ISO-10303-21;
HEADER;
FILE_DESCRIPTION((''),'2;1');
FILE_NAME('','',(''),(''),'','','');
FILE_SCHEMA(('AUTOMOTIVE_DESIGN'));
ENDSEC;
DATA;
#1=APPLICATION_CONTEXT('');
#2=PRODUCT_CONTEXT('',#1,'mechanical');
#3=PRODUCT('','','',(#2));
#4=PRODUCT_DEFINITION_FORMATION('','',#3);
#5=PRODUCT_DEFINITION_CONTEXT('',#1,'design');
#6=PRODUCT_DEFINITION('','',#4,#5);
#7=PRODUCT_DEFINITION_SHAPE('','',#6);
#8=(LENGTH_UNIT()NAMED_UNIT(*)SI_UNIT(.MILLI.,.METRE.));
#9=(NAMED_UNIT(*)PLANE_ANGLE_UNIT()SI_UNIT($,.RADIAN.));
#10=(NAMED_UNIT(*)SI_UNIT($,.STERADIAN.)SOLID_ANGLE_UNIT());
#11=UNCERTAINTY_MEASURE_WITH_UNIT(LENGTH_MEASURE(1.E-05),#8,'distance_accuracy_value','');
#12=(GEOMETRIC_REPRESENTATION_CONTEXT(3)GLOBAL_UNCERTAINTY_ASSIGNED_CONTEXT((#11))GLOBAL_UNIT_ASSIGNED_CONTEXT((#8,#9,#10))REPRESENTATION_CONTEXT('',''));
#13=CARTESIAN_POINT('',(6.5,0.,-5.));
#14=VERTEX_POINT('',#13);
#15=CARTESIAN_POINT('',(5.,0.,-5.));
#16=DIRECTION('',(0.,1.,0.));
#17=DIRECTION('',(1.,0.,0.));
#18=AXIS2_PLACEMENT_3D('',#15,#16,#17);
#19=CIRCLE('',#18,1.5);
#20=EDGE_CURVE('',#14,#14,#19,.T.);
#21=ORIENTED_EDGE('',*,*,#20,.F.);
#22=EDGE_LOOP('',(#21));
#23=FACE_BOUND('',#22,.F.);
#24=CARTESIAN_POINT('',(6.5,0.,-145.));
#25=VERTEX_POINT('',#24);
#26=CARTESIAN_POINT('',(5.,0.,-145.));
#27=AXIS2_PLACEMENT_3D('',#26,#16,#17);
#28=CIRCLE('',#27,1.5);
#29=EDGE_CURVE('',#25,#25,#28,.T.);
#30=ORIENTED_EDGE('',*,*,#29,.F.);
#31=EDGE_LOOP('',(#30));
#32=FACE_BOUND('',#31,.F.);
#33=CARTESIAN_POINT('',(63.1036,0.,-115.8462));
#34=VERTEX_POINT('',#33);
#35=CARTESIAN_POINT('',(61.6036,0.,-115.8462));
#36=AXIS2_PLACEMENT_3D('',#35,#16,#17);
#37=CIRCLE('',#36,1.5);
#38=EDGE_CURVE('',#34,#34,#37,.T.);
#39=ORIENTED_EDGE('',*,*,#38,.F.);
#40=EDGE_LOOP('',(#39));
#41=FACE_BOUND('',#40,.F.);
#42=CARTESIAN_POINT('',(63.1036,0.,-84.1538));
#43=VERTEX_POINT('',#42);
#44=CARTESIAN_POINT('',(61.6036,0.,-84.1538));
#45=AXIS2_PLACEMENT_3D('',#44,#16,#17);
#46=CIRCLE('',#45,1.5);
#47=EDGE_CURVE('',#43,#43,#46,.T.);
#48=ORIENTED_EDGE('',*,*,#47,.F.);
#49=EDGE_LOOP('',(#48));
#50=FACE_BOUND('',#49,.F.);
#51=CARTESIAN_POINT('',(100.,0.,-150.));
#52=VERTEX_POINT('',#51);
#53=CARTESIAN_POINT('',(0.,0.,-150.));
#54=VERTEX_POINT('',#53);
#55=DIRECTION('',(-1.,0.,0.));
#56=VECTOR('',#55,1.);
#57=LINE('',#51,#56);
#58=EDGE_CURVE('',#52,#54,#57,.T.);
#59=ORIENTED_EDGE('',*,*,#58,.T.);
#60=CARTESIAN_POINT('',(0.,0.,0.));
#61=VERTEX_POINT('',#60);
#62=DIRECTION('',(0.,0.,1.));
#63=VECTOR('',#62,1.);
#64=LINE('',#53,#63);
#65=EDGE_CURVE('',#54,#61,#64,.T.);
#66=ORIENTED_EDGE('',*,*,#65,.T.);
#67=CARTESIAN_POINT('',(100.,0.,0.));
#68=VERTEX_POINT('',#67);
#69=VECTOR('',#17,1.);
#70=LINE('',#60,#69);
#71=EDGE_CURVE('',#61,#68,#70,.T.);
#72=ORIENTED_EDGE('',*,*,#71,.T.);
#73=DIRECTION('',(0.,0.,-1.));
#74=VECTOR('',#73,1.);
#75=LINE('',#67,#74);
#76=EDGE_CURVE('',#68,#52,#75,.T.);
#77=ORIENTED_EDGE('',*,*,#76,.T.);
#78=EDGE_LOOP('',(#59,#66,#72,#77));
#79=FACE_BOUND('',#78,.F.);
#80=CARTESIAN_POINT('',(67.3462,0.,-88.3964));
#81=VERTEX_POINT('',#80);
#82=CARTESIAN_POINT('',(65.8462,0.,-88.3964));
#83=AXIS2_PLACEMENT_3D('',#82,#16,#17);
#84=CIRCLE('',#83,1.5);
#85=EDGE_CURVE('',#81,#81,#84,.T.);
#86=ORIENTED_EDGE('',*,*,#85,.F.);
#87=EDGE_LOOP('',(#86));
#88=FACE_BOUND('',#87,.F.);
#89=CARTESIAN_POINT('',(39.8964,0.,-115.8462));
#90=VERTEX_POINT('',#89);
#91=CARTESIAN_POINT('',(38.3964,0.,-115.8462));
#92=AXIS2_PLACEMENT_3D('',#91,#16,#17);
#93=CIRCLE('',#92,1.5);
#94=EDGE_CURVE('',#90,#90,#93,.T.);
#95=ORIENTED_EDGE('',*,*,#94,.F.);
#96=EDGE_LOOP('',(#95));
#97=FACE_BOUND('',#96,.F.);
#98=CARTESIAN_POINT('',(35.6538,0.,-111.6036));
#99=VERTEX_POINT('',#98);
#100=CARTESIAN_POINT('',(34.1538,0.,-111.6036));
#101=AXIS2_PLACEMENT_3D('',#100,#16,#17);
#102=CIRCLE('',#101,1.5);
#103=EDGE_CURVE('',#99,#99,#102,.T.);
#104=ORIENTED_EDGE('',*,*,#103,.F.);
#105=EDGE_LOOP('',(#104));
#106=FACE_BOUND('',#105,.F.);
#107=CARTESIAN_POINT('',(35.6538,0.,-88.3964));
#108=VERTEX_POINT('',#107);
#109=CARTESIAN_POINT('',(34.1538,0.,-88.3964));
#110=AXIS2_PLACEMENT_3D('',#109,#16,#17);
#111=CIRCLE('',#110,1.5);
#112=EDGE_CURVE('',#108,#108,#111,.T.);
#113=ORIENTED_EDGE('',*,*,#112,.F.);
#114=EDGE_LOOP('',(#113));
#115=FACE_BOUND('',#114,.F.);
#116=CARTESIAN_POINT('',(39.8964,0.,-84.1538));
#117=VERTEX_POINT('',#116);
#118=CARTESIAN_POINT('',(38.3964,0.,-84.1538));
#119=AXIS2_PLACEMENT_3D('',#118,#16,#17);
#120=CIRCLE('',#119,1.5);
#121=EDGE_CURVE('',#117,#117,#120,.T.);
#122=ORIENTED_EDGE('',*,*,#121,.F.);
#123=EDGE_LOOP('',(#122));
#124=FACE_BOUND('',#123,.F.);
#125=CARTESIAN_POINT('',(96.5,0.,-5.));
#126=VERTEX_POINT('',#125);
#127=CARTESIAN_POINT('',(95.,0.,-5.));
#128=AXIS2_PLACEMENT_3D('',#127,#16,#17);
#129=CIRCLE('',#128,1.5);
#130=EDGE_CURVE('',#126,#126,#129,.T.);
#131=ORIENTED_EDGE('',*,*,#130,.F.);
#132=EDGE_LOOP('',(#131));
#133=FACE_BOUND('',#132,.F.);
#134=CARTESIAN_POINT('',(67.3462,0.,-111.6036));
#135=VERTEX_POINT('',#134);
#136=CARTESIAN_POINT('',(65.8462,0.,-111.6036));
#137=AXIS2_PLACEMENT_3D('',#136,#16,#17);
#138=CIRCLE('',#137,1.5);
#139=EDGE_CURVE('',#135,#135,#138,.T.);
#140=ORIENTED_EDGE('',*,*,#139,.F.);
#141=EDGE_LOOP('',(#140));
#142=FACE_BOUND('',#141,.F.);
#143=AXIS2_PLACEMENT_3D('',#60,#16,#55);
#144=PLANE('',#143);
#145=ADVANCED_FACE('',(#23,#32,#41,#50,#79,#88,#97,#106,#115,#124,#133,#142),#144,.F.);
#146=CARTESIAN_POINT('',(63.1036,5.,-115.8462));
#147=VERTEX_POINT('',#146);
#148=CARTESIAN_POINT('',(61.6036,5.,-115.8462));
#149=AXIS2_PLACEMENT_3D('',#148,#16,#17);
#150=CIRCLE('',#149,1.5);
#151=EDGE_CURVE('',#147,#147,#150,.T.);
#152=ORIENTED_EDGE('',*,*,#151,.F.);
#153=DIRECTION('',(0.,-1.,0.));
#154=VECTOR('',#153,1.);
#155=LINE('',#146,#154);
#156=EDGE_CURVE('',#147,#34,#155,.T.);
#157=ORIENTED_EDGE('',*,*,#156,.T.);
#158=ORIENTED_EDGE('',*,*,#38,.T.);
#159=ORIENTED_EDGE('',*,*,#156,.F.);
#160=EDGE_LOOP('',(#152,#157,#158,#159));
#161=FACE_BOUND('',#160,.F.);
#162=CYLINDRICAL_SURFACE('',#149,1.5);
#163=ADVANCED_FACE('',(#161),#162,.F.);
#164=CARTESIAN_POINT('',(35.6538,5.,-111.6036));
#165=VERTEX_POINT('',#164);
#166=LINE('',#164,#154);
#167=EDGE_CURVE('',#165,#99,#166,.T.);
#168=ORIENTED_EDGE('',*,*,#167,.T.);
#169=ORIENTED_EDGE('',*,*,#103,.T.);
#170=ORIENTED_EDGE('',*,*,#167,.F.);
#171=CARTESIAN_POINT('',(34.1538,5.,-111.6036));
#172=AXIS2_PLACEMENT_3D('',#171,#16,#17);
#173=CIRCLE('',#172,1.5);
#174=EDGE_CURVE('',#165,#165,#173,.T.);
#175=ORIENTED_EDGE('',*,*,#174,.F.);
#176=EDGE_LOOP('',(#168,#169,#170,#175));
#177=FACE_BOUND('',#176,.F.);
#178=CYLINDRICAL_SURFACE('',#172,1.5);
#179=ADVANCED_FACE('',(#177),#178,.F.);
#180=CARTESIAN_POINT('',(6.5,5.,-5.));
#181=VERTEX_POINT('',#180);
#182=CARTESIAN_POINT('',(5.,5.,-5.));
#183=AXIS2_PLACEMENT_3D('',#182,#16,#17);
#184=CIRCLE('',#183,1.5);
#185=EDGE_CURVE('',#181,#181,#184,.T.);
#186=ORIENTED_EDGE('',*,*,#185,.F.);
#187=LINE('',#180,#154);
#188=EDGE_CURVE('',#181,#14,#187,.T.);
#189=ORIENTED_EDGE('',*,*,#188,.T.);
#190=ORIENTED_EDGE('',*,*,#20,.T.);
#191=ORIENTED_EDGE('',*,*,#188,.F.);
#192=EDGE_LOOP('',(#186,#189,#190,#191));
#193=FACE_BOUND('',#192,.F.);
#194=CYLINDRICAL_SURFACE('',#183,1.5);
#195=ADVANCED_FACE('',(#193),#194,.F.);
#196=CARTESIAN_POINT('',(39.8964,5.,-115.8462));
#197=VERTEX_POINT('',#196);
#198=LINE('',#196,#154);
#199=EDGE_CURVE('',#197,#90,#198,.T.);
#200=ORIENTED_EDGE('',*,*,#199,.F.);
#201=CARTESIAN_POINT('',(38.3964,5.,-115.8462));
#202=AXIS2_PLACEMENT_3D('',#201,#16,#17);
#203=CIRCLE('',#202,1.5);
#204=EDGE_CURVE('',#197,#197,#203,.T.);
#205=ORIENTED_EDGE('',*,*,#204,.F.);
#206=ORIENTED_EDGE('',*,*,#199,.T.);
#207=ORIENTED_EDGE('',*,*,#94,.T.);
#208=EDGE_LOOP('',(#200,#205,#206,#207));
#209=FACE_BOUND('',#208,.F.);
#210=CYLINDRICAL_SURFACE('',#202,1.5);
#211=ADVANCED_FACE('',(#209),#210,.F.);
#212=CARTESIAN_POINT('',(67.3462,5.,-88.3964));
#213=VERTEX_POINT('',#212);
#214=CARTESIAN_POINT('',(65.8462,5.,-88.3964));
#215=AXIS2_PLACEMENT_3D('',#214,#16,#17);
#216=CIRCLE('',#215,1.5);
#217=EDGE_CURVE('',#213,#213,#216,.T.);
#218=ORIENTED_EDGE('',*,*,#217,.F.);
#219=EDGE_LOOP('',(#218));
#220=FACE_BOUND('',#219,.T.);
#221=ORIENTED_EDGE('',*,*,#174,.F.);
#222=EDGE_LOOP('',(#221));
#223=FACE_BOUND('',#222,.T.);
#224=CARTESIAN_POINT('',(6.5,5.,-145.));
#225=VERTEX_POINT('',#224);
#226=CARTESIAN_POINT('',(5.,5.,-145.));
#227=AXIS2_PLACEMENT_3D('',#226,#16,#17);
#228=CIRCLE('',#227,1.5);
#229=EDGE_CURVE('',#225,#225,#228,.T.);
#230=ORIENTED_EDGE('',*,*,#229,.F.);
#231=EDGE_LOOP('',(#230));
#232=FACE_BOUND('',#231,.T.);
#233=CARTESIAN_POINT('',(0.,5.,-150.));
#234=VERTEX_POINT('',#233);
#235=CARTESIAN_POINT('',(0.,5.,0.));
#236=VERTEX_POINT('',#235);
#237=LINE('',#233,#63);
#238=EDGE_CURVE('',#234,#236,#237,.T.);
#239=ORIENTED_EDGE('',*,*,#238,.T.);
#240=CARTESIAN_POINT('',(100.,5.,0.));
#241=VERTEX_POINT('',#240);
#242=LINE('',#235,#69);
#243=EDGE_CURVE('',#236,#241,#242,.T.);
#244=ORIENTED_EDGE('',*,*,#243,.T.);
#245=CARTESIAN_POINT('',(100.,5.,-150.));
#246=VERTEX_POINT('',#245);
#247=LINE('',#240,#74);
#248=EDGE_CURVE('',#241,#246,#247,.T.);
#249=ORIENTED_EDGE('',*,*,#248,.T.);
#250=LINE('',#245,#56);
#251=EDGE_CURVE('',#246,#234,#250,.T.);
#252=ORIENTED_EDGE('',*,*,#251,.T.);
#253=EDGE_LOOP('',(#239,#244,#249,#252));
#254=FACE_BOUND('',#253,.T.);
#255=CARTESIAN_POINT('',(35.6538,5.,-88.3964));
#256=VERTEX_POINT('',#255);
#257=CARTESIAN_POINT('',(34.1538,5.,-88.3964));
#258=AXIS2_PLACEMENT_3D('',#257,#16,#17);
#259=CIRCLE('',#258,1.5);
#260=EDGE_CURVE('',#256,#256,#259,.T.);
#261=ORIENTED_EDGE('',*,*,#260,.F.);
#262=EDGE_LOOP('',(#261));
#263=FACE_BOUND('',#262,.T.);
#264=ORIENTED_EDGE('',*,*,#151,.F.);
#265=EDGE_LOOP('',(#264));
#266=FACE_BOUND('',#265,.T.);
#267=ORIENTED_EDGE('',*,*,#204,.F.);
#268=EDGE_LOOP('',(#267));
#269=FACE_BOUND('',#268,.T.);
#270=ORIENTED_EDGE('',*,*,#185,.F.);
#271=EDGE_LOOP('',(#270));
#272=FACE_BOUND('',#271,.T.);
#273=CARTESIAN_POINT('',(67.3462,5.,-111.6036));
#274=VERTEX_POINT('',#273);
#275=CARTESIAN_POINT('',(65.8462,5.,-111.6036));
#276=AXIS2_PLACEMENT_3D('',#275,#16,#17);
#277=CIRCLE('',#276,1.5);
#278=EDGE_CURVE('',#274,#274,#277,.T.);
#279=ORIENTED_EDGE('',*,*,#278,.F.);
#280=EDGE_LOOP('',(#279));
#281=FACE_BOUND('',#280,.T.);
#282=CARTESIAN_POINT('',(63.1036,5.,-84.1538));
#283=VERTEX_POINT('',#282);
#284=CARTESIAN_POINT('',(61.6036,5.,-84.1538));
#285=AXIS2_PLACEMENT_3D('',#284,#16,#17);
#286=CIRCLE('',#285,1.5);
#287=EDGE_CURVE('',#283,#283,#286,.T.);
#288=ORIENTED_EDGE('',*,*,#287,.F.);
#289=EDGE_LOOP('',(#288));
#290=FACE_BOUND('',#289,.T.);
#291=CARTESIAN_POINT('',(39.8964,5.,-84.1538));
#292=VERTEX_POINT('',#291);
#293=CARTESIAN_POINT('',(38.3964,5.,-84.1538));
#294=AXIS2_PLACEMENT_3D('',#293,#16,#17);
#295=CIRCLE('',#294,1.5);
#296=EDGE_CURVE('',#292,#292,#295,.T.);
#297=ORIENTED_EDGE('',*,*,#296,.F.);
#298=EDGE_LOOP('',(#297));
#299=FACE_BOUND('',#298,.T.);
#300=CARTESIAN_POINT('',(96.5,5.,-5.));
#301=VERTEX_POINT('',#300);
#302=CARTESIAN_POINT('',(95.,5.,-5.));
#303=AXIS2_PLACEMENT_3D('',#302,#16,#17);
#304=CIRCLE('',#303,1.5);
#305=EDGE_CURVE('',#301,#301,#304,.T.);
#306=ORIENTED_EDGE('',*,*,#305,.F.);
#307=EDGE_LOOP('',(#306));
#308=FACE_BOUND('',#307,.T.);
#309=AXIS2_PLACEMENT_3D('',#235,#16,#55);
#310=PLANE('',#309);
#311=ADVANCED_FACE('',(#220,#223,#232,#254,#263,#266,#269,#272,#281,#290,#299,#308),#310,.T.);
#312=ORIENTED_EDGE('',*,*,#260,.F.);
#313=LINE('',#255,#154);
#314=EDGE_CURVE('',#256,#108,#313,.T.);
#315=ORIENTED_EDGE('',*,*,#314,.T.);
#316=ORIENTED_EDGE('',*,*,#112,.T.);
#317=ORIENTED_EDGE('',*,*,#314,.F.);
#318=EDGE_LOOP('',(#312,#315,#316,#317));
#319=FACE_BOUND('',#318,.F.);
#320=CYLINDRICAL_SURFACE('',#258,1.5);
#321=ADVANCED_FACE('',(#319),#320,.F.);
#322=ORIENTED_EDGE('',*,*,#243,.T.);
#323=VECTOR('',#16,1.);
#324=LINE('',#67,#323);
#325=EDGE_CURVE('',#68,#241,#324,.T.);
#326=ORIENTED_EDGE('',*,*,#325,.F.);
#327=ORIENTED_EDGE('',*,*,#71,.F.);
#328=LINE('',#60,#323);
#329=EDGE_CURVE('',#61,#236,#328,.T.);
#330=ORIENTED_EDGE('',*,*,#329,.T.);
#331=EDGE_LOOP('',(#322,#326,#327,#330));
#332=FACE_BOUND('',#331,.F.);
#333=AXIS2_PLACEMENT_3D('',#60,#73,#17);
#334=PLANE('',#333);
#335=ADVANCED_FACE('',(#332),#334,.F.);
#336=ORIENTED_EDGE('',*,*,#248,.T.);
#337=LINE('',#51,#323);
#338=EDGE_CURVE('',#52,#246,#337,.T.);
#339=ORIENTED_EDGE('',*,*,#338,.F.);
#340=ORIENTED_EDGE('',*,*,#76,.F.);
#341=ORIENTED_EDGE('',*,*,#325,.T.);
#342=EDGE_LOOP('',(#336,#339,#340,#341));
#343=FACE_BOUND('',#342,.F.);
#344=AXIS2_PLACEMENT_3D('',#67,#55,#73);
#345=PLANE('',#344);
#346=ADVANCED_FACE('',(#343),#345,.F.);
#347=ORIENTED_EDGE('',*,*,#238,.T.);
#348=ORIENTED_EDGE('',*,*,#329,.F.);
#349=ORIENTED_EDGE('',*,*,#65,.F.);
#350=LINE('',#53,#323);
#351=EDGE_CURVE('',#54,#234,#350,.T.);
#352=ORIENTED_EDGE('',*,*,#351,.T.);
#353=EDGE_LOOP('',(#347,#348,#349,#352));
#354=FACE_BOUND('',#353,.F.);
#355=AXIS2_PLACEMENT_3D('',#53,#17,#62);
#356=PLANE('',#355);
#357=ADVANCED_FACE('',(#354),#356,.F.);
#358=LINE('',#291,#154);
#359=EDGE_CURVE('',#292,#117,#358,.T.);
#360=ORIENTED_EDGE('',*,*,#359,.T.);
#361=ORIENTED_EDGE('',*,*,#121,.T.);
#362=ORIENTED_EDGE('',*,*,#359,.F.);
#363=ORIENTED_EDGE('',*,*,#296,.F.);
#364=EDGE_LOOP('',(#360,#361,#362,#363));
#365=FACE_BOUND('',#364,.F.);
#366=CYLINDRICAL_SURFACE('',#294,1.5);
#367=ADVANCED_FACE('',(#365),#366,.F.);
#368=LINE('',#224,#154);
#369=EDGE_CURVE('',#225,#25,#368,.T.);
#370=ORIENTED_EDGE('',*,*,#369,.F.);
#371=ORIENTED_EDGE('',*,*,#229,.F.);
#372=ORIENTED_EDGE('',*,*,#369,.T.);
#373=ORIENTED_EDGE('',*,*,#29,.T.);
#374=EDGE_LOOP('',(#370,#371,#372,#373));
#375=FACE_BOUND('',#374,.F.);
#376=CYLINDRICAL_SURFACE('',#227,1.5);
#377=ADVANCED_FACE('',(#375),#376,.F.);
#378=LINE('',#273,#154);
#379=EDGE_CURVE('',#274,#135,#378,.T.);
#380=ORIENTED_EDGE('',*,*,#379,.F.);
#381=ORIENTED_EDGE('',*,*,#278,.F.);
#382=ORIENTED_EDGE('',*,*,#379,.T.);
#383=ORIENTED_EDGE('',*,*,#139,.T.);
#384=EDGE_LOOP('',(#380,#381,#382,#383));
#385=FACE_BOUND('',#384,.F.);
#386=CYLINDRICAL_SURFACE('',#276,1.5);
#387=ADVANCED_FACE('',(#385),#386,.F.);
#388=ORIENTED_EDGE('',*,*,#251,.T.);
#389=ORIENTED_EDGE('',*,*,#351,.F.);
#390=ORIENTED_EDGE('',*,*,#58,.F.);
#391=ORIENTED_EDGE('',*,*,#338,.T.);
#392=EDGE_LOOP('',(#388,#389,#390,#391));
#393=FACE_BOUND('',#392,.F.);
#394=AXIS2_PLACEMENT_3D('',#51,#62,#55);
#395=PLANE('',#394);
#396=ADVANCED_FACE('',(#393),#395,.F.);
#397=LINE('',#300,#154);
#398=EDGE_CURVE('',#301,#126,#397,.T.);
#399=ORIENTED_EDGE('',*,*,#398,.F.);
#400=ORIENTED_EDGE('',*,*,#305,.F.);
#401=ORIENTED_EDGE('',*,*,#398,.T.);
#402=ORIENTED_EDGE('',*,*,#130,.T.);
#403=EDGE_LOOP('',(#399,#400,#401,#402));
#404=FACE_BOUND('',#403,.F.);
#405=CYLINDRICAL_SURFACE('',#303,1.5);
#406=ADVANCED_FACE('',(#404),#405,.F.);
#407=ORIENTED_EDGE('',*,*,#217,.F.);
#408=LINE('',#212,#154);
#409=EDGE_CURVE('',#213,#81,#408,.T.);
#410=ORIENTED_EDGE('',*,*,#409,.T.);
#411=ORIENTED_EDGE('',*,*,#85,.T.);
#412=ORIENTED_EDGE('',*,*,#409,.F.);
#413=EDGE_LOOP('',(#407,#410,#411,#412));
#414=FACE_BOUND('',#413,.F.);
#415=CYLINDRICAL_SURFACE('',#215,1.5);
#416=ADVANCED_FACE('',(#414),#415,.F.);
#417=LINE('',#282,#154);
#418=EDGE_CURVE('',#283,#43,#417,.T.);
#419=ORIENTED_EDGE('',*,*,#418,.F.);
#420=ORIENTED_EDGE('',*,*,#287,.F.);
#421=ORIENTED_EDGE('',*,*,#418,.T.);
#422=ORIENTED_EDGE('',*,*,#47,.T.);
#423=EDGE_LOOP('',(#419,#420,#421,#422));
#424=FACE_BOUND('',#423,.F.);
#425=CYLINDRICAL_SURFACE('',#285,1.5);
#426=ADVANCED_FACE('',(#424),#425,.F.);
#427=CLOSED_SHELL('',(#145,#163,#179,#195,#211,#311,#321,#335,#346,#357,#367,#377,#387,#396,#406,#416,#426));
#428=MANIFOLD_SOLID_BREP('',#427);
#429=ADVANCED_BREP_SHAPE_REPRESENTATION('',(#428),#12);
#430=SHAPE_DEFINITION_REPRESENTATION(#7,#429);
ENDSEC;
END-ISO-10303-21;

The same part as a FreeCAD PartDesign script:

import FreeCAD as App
import Part
import Sketcher

doc = App.newDocument("Part")
body = doc.addObject("PartDesign::Body", "Body")

# Sketch on XZ plane
sketch1 = doc.addObject("Sketcher::SketchObject", "Sketch")
body.addObject(sketch1)
sketch1.AttachmentSupport = (doc.XZ_Plane, [""])
sketch1.MapMode = "FlatFace"
sketch1.addGeometry([
    Part.LineSegment(App.Vector(0, -150, 0), App.Vector(0, 0, 0)),
    Part.LineSegment(App.Vector(0, 0, 0), App.Vector(100, 0, 0)),
    Part.LineSegment(App.Vector(100, 0, 0), App.Vector(100, -150, 0)),
    Part.LineSegment(App.Vector(100, -150, 0), App.Vector(0, -150, 0)),
], False)
sketch1.addConstraint([
    Sketcher.Constraint("Coincident", 0, 2, 1, 1),
    Sketcher.Constraint("Coincident", 1, 2, 2, 1),
    Sketcher.Constraint("Coincident", 2, 2, 3, 1),
    Sketcher.Constraint("Coincident", 3, 2, 0, 1),
    Sketcher.Constraint("Vertical", 0),
    Sketcher.Constraint("Horizontal", 1),
    Sketcher.Constraint("Vertical", 2),
    Sketcher.Constraint("Horizontal", 3),
    Sketcher.Constraint("Coincident", 0, 2, -1, 1),
    Sketcher.Constraint("DistanceX", 1, 1, 1, 2, 100.0),
    Sketcher.Constraint("DistanceY", 0, 1, 0, 2, 150.0),
])
pad1 = doc.addObject("PartDesign::Pad", "Pad")
body.addObject(pad1)
pad1.Profile = sketch1
pad1.Length = 5
pad1.Reversed = True

# Sketch on XZ plane
sketch2 = doc.addObject("Sketcher::SketchObject", "Sketch001")
body.addObject(sketch2)
sketch2.AttachmentSupport = (doc.XZ_Plane, [""])
sketch2.MapMode = "FlatFace"
sketch2.AttachmentOffset = App.Placement(App.Vector(0, 0, -5), App.Rotation())
sketch2.addGeometry([
    Part.Circle(App.Vector(65.8462, -111.6036, 0), App.Vector(0, 0, 1), 1.5),  # 0
    Part.Circle(App.Vector(61.6036, -115.8462, 0), App.Vector(0, 0, 1), 1.5),  # 1
    Part.Circle(App.Vector(38.3964, -115.8462, 0), App.Vector(0, 0, 1), 1.5),  # 2
    Part.Circle(App.Vector(34.1538, -111.6036, 0), App.Vector(0, 0, 1), 1.5),  # 3
    Part.Circle(App.Vector(34.1538, -88.3964, 0), App.Vector(0, 0, 1), 1.5),  # 4
    Part.Circle(App.Vector(38.3964, -84.1538, 0), App.Vector(0, 0, 1), 1.5),  # 5
    Part.Circle(App.Vector(61.6036, -84.1538, 0), App.Vector(0, 0, 1), 1.5),  # 6
    Part.Circle(App.Vector(65.8462, -88.3964, 0), App.Vector(0, 0, 1), 1.5),  # 7
], False)
sketch2.addConstraint([
    Sketcher.Constraint("Equal", 0, 1),
    Sketcher.Constraint("Equal", 1, 2),
    Sketcher.Constraint("Equal", 2, 3),
    Sketcher.Constraint("Equal", 3, 4),
    Sketcher.Constraint("Equal", 4, 5),
    Sketcher.Constraint("Equal", 5, 6),
    Sketcher.Constraint("Equal", 6, 7),
    Sketcher.Constraint("Horizontal", 1, 3, 2, 3),
    Sketcher.Constraint("Horizontal", 0, 3, 3, 3),
    Sketcher.Constraint("Horizontal", 5, 3, 6, 3),
    Sketcher.Constraint("Horizontal", 4, 3, 7, 3),
    Sketcher.Constraint("Vertical", 3, 3, 4, 3),
    Sketcher.Constraint("Vertical", 2, 3, 5, 3),
    Sketcher.Constraint("Vertical", 1, 3, 6, 3),
    Sketcher.Constraint("Vertical", 0, 3, 7, 3),
    Sketcher.Constraint("Diameter", 0, 3.0),
    Sketcher.Constraint("DistanceX", -1, 1, 0, 3, 65.8462),
    Sketcher.Constraint("DistanceY", 0, 3, -1, 1, 111.6036),
    Sketcher.Constraint("DistanceX", -1, 1, 1, 3, 61.6036),
    Sketcher.Constraint("DistanceY", 1, 3, -1, 1, 115.8462),
    Sketcher.Constraint("DistanceX", -1, 1, 2, 3, 38.3964),
    Sketcher.Constraint("DistanceX", -1, 1, 3, 3, 34.1538),
    Sketcher.Constraint("DistanceY", 4, 3, -1, 1, 88.3964),
    Sketcher.Constraint("DistanceY", 5, 3, -1, 1, 84.1538),
])
pocket1 = doc.addObject("PartDesign::Pocket", "Pocket")
body.addObject(pocket1)
pocket1.Profile = sketch2
pocket1.Length = 5
pocket1.Reversed = True

# Sketch on XZ plane
sketch3 = doc.addObject("Sketcher::SketchObject", "Sketch002")
body.addObject(sketch3)
sketch3.AttachmentSupport = (doc.XZ_Plane, [""])
sketch3.MapMode = "FlatFace"
sketch3.AttachmentOffset = App.Placement(App.Vector(0, 0, -5), App.Rotation())
sketch3.addGeometry([
    Part.Circle(App.Vector(5, -145, 0), App.Vector(0, 0, 1), 1.5),
    Part.Circle(App.Vector(5, -5, 0), App.Vector(0, 0, 1), 1.5),
    Part.Circle(App.Vector(95, -5, 0), App.Vector(0, 0, 1), 1.5),
], False)
sketch3.addConstraint([
    Sketcher.Constraint("Equal", 0, 1),
    Sketcher.Constraint("Equal", 1, 2),
    Sketcher.Constraint("Horizontal", 1, 3, 2, 3),
    Sketcher.Constraint("Vertical", 0, 3, 1, 3),
    Sketcher.Constraint("Diameter", 0, 3.0),
    Sketcher.Constraint("DistanceX", -1, 1, 0, 3, 5.0),
    Sketcher.Constraint("DistanceY", 0, 3, -1, 1, 145.0),
    Sketcher.Constraint("DistanceY", 1, 3, -1, 1, 5.0),
    Sketcher.Constraint("DistanceX", -1, 1, 2, 3, 95.0),
])
pocket2 = doc.addObject("PartDesign::Pocket", "Pocket001")
body.addObject(pocket2)
pocket2.Profile = sketch3
pocket2.Length = 5
pocket2.Reversed = True

doc.recompute()
